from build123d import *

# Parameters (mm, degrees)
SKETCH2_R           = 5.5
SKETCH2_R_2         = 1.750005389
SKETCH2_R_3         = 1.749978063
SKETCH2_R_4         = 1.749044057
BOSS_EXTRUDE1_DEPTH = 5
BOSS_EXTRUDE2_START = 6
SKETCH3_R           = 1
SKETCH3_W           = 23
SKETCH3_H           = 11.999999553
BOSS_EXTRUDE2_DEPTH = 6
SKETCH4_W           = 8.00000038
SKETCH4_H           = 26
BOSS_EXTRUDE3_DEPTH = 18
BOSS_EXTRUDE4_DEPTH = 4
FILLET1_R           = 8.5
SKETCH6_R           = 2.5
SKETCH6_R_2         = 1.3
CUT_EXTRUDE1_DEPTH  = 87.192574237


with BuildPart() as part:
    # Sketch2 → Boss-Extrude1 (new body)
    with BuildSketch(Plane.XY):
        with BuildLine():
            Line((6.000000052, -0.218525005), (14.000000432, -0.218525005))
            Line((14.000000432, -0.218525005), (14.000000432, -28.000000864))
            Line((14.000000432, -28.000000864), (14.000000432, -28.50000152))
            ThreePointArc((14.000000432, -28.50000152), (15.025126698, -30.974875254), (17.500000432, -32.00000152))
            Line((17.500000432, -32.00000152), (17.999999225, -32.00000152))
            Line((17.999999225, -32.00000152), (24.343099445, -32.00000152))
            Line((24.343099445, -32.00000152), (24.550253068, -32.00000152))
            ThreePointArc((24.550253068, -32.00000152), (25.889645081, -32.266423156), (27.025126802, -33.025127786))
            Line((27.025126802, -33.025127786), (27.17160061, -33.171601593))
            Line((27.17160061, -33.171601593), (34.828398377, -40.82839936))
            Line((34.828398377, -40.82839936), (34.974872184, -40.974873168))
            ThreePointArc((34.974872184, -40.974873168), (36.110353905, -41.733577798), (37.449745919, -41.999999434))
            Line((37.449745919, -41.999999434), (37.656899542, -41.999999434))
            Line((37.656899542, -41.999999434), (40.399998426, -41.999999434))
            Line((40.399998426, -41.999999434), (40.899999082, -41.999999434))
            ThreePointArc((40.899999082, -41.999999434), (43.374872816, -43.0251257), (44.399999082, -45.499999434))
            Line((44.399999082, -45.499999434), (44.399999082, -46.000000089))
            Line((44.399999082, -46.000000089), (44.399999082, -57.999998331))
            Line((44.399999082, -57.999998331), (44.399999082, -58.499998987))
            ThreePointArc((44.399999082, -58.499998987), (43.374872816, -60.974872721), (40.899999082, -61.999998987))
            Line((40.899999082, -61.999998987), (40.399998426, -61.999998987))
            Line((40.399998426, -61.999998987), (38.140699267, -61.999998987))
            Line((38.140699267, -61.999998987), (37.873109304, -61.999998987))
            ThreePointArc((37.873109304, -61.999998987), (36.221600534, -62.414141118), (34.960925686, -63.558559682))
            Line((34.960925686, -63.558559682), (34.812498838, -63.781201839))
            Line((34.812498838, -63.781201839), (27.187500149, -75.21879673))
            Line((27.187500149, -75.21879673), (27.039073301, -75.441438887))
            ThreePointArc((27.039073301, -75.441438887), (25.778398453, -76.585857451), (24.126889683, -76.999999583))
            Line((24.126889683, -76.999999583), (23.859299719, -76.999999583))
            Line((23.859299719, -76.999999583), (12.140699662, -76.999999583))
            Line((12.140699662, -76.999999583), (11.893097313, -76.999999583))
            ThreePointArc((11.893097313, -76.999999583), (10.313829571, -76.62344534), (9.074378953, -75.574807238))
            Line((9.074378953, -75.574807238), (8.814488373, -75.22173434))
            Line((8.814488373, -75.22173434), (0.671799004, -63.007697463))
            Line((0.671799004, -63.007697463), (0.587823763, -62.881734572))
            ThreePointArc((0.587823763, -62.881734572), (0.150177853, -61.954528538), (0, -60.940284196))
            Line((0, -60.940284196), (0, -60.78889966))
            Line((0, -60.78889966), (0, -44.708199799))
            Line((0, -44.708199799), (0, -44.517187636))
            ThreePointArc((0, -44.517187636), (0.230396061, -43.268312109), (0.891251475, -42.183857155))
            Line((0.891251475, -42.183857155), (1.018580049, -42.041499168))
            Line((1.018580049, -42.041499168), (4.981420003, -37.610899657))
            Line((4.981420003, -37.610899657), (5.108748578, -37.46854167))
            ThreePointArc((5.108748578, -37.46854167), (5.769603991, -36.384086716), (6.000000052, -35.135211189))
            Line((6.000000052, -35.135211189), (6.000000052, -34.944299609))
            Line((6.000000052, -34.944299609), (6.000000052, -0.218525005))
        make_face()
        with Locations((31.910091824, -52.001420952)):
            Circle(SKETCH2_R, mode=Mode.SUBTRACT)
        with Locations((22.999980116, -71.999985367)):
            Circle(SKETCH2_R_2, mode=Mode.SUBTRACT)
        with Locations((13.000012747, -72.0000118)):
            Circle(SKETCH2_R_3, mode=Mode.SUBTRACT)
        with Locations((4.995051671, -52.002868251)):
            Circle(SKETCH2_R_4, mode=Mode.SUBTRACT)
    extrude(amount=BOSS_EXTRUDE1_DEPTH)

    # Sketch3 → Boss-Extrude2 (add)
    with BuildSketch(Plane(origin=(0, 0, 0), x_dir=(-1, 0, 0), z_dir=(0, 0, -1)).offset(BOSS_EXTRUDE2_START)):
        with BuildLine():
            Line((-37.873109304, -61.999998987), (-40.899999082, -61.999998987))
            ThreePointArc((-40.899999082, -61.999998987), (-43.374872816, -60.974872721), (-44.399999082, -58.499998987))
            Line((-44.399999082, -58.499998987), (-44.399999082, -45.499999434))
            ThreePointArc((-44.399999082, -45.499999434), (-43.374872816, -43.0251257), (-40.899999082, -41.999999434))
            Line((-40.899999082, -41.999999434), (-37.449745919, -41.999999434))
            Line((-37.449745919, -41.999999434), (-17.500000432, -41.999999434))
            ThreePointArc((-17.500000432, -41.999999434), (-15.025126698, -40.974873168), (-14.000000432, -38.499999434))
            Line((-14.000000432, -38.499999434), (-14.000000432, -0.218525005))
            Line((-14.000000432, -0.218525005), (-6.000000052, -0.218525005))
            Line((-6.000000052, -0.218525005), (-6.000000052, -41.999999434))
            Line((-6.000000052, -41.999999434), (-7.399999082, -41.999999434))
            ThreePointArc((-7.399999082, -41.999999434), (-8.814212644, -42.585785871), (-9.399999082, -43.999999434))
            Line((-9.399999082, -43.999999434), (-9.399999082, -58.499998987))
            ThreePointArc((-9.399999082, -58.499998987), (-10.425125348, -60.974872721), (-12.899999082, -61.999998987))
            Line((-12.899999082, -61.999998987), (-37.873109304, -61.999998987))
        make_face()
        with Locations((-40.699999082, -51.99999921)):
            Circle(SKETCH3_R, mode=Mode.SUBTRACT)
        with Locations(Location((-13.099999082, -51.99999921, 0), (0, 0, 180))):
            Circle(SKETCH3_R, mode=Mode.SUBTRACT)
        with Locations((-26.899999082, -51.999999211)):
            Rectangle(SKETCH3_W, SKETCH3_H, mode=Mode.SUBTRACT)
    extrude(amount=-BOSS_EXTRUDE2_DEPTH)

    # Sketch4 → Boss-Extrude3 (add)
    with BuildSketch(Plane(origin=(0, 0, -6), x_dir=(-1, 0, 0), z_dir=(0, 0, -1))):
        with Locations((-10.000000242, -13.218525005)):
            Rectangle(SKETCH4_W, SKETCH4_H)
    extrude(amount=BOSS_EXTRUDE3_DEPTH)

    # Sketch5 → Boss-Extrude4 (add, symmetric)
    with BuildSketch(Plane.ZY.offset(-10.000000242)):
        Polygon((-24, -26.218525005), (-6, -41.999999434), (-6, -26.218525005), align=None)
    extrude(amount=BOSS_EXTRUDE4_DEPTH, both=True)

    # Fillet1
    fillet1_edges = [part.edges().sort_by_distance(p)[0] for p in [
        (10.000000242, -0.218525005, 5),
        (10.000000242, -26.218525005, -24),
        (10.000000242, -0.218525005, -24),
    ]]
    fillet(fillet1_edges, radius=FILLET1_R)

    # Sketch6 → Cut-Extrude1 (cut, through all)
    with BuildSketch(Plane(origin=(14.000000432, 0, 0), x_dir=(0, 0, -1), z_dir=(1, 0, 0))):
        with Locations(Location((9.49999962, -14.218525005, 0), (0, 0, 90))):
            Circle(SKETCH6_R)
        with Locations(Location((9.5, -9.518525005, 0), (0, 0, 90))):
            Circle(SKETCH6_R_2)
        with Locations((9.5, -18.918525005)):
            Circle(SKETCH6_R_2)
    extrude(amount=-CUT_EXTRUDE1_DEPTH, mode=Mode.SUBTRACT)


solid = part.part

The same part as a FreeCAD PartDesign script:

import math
import FreeCAD as App
import Part
import Sketcher
from FreeCAD import Vector
Q = App.Units.Quantity


def edges_at(feature, points):
    """Names of the edges that pass closest to the given points."""
    edges = feature.Shape.Edges
    near = lambda p: min(range(len(edges)), key=lambda i: edges[i].distToShape(Part.Vertex(*p))[0])
    return sorted({f"Edge{near(p) + 1}" for p in points})


def add_polygon(sketch, points):
    """Adds a closed chain of lines whose ends are joined by coincident constraints."""
    first, n = sketch.GeometryCount, len(points)
    for a, b in zip(points, points[1:] + points[:1]):
        sketch.addGeometry(Part.LineSegment(App.Vector(*a, 0), App.Vector(*b, 0)), False)
    for i in range(n):
        sketch.addConstraint(Sketcher.Constraint("Coincident", first + i, 2, first + (i + 1) % n, 1))

doc = App.newDocument("Part")
body = doc.addObject("PartDesign::Body", "Body")

# Sketch on XY plane
sketch1 = doc.addObject("Sketcher::SketchObject", "Sketch")
body.addObject(sketch1)
sketch1.AttachmentSupport = (doc.XY_Plane, [""])
sketch1.MapMode = "FlatFace"
sketch1.addGeometry(Part.LineSegment(Vector(14, -0.22, 0), Vector(6, -0.22, 0)), False)
sketch1.addGeometry(Part.LineSegment(Vector(6, -0.22, 0), Vector(6, -35.14, 0)), False)
sketch1.addGeometry(Part.ArcOfCircle(Part.Circle(Vector(2.5, -35.14, 0), Vector(0, 0, 1), 3.5), math.radians(-42), math.radians(0)), False)
sketch1.addGeometry(Part.LineSegment(Vector(5.11, -37.47, 0), Vector(4.98, -37.61, 0)), False)
sketch1.addGeometry(Part.LineSegment(Vector(4.98, -37.61, 0), Vector(1.02, -42.04, 0)), False)
sketch1.addGeometry(Part.LineSegment(Vector(1.02, -42.04, 0), Vector(0.89, -42.18, 0)), False)
sketch1.addGeometry(Part.ArcOfCircle(Part.Circle(Vector(3.5, -44.52, 0), Vector(0, 0, 1), 3.5), math.radians(138), math.radians(180)), False)
sketch1.addGeometry(Part.LineSegment(Vector(0, -44.52, 0), Vector(0, -60.94, 0)), False)
sketch1.addGeometry(Part.ArcOfCircle(Part.Circle(Vector(3.5, -60.94, 0), Vector(0, 0, 1), 3.5), math.radians(180), math.radians(214)), False)
sketch1.addGeometry(Part.LineSegment(Vector(0.59, -62.88, 0), Vector(0.67, -63.01, 0)), False)
sketch1.addGeometry(Part.LineSegment(Vector(0.67, -63.01, 0), Vector(8.81, -75.22, 0)), False)
sketch1.addGeometry(Part.LineSegment(Vector(8.81, -75.22, 0), Vector(9.07, -75.57, 0)), False)
sketch1.addGeometry(Part.ArcOfCircle(Part.Circle(Vector(11.89, -73.5, 0), Vector(0, 0, 1), 3.5), math.radians(-144), math.radians(-90)), False)
sketch1.addGeometry(Part.LineSegment(Vector(11.89, -77, 0), Vector(24.13, -77, 0)), False)
sketch1.addGeometry(Part.ArcOfCircle(Part.Circle(Vector(24.13, -73.5, 0), Vector(0, 0, 1), 3.5), math.radians(-90), math.radians(-34)), False)
sketch1.addGeometry(Part.LineSegment(Vector(27.04, -75.44, 0), Vector(27.19, -75.22, 0)), False)
sketch1.addGeometry(Part.LineSegment(Vector(27.19, -75.22, 0), Vector(34.81, -63.78, 0)), False)
sketch1.addGeometry(Part.LineSegment(Vector(34.81, -63.78, 0), Vector(34.96, -63.56, 0)), False)
sketch1.addGeometry(Part.ArcOfCircle(Part.Circle(Vector(37.87, -65.5, 0), Vector(0, 0, 1), 3.5), math.radians(90), math.radians(146)), False)
sketch1.addGeometry(Part.LineSegment(Vector(37.87, -62, 0), Vector(40.9, -62, 0)), False)
sketch1.addGeometry(Part.ArcOfCircle(Part.Circle(Vector(40.9, -58.5, 0), Vector(0, 0, 1), 3.5), math.radians(-90), math.radians(0)), False)
sketch1.addGeometry(Part.LineSegment(Vector(44.4, -58.5, 0), Vector(44.4, -45.5, 0)), False)
sketch1.addGeometry(Part.ArcOfCircle(Part.Circle(Vector(40.9, -45.5, 0), Vector(0, 0, 1), 3.5), math.radians(0), math.radians(90)), False)
sketch1.addGeometry(Part.LineSegment(Vector(40.9, -42, 0), Vector(37.45, -42, 0)), False)
sketch1.addGeometry(Part.ArcOfCircle(Part.Circle(Vector(37.45, -38.5, 0), Vector(0, 0, 1), 3.5), math.radians(-135), math.radians(-90)), False)
sketch1.addGeometry(Part.LineSegment(Vector(34.97, -40.97, 0), Vector(34.83, -40.83, 0)), False)
sketch1.addGeometry(Part.LineSegment(Vector(34.83, -40.83, 0), Vector(27.17, -33.17, 0)), False)
sketch1.addGeometry(Part.LineSegment(Vector(27.17, -33.17, 0), Vector(27.03, -33.03, 0)), False)
sketch1.addGeometry(Part.ArcOfCircle(Part.Circle(Vector(24.55, -35.5, 0), Vector(0, 0, 1), 3.5), math.radians(45), math.radians(90)), False)
sketch1.addGeometry(Part.LineSegment(Vector(24.55, -32, 0), Vector(17.5, -32, 0)), False)
sketch1.addGeometry(Part.ArcOfCircle(Part.Circle(Vector(17.5, -28.5, 0), Vector(0, 0, 1), 3.5), math.radians(-180), math.radians(-90)), False)
sketch1.addGeometry(Part.LineSegment(Vector(14, -28.5, 0), Vector(14, -0.22, 0)), False)
sketch1.addGeometry(Part.Circle(Vector(23, -72, 0), Vector(0, 0, 1), 1.75), False)
sketch1.addGeometry(Part.Circle(Vector(13, -72, 0), Vector(0, 0, 1), 1.75), False)
sketch1.addGeometry(Part.Circle(Vector(31.91, -52, 0), Vector(0, 0, 1), 5.5), False)
sketch1.addGeometry(Part.Circle(Vector(5, -52, 0), Vector(0, 0, 1), 1.75), False)
sketch1.addConstraint(Sketcher.Constraint("Coincident", 0, 2, 1, 1))
sketch1.addConstraint(Sketcher.Constraint("Tangent", 1, 2, 2, 2))
sketch1.addConstraint(Sketcher.Constraint("Tangent", 2, 1, 3, 1))
sketch1.addConstraint(Sketcher.Constraint("Coincident", 3, 2, 4, 1))
sketch1.addConstraint(Sketcher.Constraint("Coincident", 4, 2, 5, 1))
sketch1.addConstraint(Sketcher.Constraint("Tangent", 5, 2, 6, 1))
sketch1.addConstraint(Sketcher.Constraint("Tangent", 6, 2, 7, 1))
sketch1.addConstraint(Sketcher.Constraint("Tangent", 7, 2, 8, 1))
sketch1.addConstraint(Sketcher.Constraint("Tangent", 8, 2, 9, 1))
sketch1.addConstraint(Sketcher.Constraint("Coincident", 9, 2, 10, 1))
sketch1.addConstraint(Sketcher.Constraint("Coincident", 10, 2, 11, 1))
sketch1.addConstraint(Sketcher.Constraint("Tangent", 11, 2, 12, 1))
sketch1.addConstraint(Sketcher.Constraint("Tangent", 12, 2, 13, 1))
sketch1.addConstraint(Sketcher.Constraint("Tangent", 13, 2, 14, 1))
sketch1.addConstraint(Sketcher.Constraint("Tangent", 14, 2, 15, 1))
sketch1.addConstraint(Sketcher.Constraint("Coincident", 15, 2, 16, 1))
sketch1.addConstraint(Sketcher.Constraint("Coincident", 16, 2, 17, 1))
sketch1.addConstraint(Sketcher.Constraint("Tangent", 17, 2, 18, 2))
sketch1.addConstraint(Sketcher.Constraint("Tangent", 18, 1, 19, 1))
sketch1.addConstraint(Sketcher.Constraint("Tangent", 19, 2, 20, 1))
sketch1.addConstraint(Sketcher.Constraint("Tangent", 20, 2, 21, 1))
sketch1.addConstraint(Sketcher.Constraint("Tangent", 21, 2, 22, 1))
sketch1.addConstraint(Sketcher.Constraint("Tangent", 22, 2, 23, 1))
sketch1.addConstraint(Sketcher.Constraint("Tangent", 23, 2, 24, 2))
sketch1.addConstraint(Sketcher.Constraint("Tangent", 24, 1, 25, 1))
sketch1.addConstraint(Sketcher.Constraint("Coincident", 25, 2, 26, 1))
sketch1.addConstraint(Sketcher.Constraint("Coincident", 26, 2, 27, 1))
sketch1.addConstraint(Sketcher.Constraint("Tangent", 27, 2, 28, 1))
sketch1.addConstraint(Sketcher.Constraint("Tangent", 28, 2, 29, 1))
sketch1.addConstraint(Sketcher.Constraint("Tangent", 29, 2, 30, 2))
sketch1.addConstraint(Sketcher.Constraint("Tangent", 30, 1, 31, 1))
sketch1.addConstraint(Sketcher.Constraint("Coincident", 31, 2, 0, 1))
sketch1.addConstraint(Sketcher.Constraint("Horizontal", 0))
sketch1.addConstraint(Sketcher.Constraint("Vertical", 1))
sketch1.addConstraint(Sketcher.Constraint("Vertical", 7))
sketch1.addConstraint(Sketcher.Constraint("Horizontal", 13))
sketch1.addConstraint(Sketcher.Constraint("Horizontal", 19))
sketch1.addConstraint(Sketcher.Constraint("Vertical", 21))
sketch1.addConstraint(Sketcher.Constraint("Horizontal", 23))
sketch1.addConstraint(Sketcher.Constraint("Horizontal", 29))
sketch1.addConstraint(Sketcher.Constraint("Vertical", 31))
sketch1.addConstraint(Sketcher.Constraint("Equal", 2, 6))
sketch1.addConstraint(Sketcher.Constraint("Equal", 6, 8))
sketch1.addConstraint(Sketcher.Constraint("Equal", 8, 12))
sketch1.addConstraint(Sketcher.Constraint("Equal", 12, 14))
sketch1.addConstraint(Sketcher.Constraint("Equal", 14, 18))
sketch1.addConstraint(Sketcher.Constraint("Equal", 18, 20))
sketch1.addConstraint(Sketcher.Constraint("Equal", 20, 22))
sketch1.addConstraint(Sketcher.Constraint("Equal", 22, 24))
sketch1.addConstraint(Sketcher.Constraint("Equal", 24, 28))
sketch1.addConstraint(Sketcher.Constraint("Equal", 28, 30))
sketch1.addConstraint(Sketcher.Constraint("PointOnObject", 6, 2, -2))
sketch1.addConstraint(Sketcher.Constraint("Parallel", 3, 4))
sketch1.addConstraint(Sketcher.Constraint("Parallel", 4, 5))
sketch1.addConstraint(Sketcher.Constraint("Parallel", 9, 10))
sketch1.addConstraint(Sketcher.Constraint("Parallel", 15, 16))
sketch1.addConstraint(Sketcher.Constraint("Parallel", 16, 17))
sketch1.addConstraint(Sketcher.Constraint("Parallel", 25, 26))
sketch1.addConstraint(Sketcher.Constraint("Parallel", 26, 27))
sketch1.addConstraint(Sketcher.Constraint("Equal", 3, 5))
sketch1.addConstraint(Sketcher.Constraint("Equal", 15, 17))
sketch1.addConstraint(Sketcher.Constraint("Equal", 25, 27))
sketch1.addConstraint(Sketcher.Constraint("Diameter", 34, Q("11 mm")))
sketch1.addConstraint(Sketcher.Constraint("Radius", 2, Q("3.5 mm")))
sketch1.addConstraint(Sketcher.Constraint("DistanceX", 0, 2, 0, 1, Q("8 mm")))
sketch1.addConstraint(Sketcher.Constraint("DistanceY", 21, 1, 21, 2, Q("13 mm")))
sketch1.addConstraint(Sketcher.Constraint("Angle", 25, Q("135 deg")))
sketch1.addConstraint(Sketcher.Constraint("DistanceX", -1, 1, 0, 2, Q("6 mm")))
sketch1.addConstraint(Sketcher.Constraint("DistanceY", 12, 2, -1, 1, Q("77 mm")))
sketch1.addConstraint(Sketcher.Constraint("DistanceY", 18, 1, -1, 1, Q("61.999999 mm")))
sketch1.addConstraint(Sketcher.Constraint("DistanceY", 28, 2, -1, 1, Q("32.000002 mm")))
sketch1.addConstraint(Sketcher.Constraint("DistanceX", -1, 1, 20, 3, Q("40.899999 mm")))
sketch1.addConstraint(Sketcher.Constraint("Diameter", 32, Q("3.500011 mm")))
sketch1.addConstraint(Sketcher.Constraint("Diameter", 35, Q("3.498088 mm")))
sketch1.addConstraint(Sketcher.Constraint("DistanceY", 10, 2, 8, 2, Q("12.34 mm")))
sketch1.addConstraint(Sketcher.Constraint("Diameter", 33, Q("3.499956 mm")))
sketch1.addConstraint(Sketcher.Constraint("DistanceX", 15, 2, 16, 2, Q("7.624999 mm")))
sketch1.addConstraint(Sketcher.Constraint("DistanceX", 19, 1, 19, 2, Q("3.02689 mm")))
sketch1.addConstraint(Sketcher.Constraint("DistanceY", 3, 2, -1, 1, Q("37.6109 mm")))
sketch1.addConstraint(Sketcher.Constraint("DistanceY", 4, 2, -1, 1, Q("42.041499 mm")))
sketch1.addConstraint(Sketcher.Constraint("DistanceX", -1, 1, 9, 2, Q("0.671799 mm")))
sketch1.addConstraint(Sketcher.Constraint("DistanceX", -1, 1, 15, 2, Q("27.1875 mm")))
sketch1.addConstraint(Sketcher.Constraint("DistanceX", -1, 1, 25, 2, Q("34.828398 mm")))
sketch1.addConstraint(Sketcher.Constraint("DistanceY", 25, 2, -1, 1, Q("40.828399 mm")))
sketch1.addConstraint(Sketcher.Constraint("DistanceX", 12, 3, 20, 3, Q("29.006902 mm")))
sketch1.addConstraint(Sketcher.Constraint("DistanceY", 32, 3, 8, 3, Q("11.059701 mm")))
sketch1.addConstraint(Sketcher.Constraint("DistanceX", 11, 2, 32, 3, Q("13.925601 mm")))
sketch1.addConstraint(Sketcher.Constraint("Distance", 9, Q("0.151389 mm")))
sketch1.addConstraint(Sketcher.Constraint("Distance", 11, Q("0.43841 mm")))
sketch1.addConstraint(Sketcher.Constraint("DistanceY", 1, 2, 1, 1, Q("34.916686 mm")))
sketch1.addConstraint(Sketcher.Constraint("DistanceY", 7, 2, 7, 1, Q("16.423097 mm")))
sketch1.addConstraint(Sketcher.Constraint("DistanceY", 33, 3, -1, 1, Q("72.000012 mm")))
sketch1.addConstraint(Sketcher.Constraint("DistanceX", -1, 1, 34, 3, Q("31.910092 mm")))
sketch1.addConstraint(Sketcher.Constraint("DistanceY", 34, 3, -1, 1, Q("52.001421 mm")))
sketch1.addConstraint(Sketcher.Constraint("DistanceX", -1, 1, 35, 3, Q("4.995052 mm")))
sketch1.addConstraint(Sketcher.Constraint("DistanceY", 35, 3, -1, 1, Q("52.002868 mm")))
sketch1.addConstraint(Sketcher.Constraint("DistanceX", 35, 3, 33, 3, Q("8.004961 mm")))
pad1 = doc.addObject("PartDesign::Pad", "Pad")
body.addObject(pad1)
pad1.Profile = sketch1
pad1.Length = 5

# Sketch on XY plane
sketch2 = doc.addObject("Sketcher::SketchObject", "Sketch001")
body.addObject(sketch2)
sketch2.AttachmentSupport = (doc.XY_Plane, [""])
sketch2.MapMode = "FlatFace"
sketch2.AttachmentOffset = App.Placement(Vector(0, 0, -6), App.Rotation())
sketch2.addGeometry(Part.ArcOfCircle(Part.Circle(Vector(40.9, -58.5, 0), Vector(0, 0, 1), 3.5), math.radians(-90), math.radians(0)), False)  # 0
sketch2.addGeometry(Part.LineSegment(Vector(40.9, -62, 0), Vector(12.9, -62, 0)), False)  # 1
sketch2.addGeometry(Part.ArcOfCircle(Part.Circle(Vector(12.9, -58.5, 0), Vector(0, 0, 1), 3.5), math.radians(-180), math.radians(-90)), False)  # 2
sketch2.addGeometry(Part.LineSegment(Vector(9.4, -58.5, 0), Vector(9.4, -44, 0)), False)  # 3
sketch2.addGeometry(Part.ArcOfCircle(Part.Circle(Vector(7.4, -44, 0), Vector(0, 0, 1), 2), math.radians(0), math.radians(90)), False)  # 4
sketch2.addGeometry(Part.LineSegment(Vector(7.4, -42, 0), Vector(6, -42, 0)), False)  # 5
sketch2.addGeometry(Part.LineSegment(Vector(6, -42, 0), Vector(6, -0.2, 0)), False)  # 6
sketch2.addGeometry(Part.LineSegment(Vector(6, -0.2, 0), Vector(14, -0.2, 0)), False)  # 7
sketch2.addGeometry(Part.LineSegment(Vector(14, -0.2, 0), Vector(14, -38.5, 0)), False)  # 8
sketch2.addGeometry(Part.ArcOfCircle(Part.Circle(Vector(17.5, -38.5, 0), Vector(0, 0, 1), 3.5), math.radians(-180), math.radians(-90)), False)  # 9
sketch2.addGeometry(Part.LineSegment(Vector(17.5, -42, 0), Vector(40.9, -42, 0)), False)  # 10
sketch2.addGeometry(Part.ArcOfCircle(Part.Circle(Vector(40.9, -45.5, 0), Vector(0, 0, 1), 3.5), math.radians(0), math.radians(90)), False)  # 11
sketch2.addGeometry(Part.LineSegment(Vector(44.4, -45.5, 0), Vector(44.4, -58.5, 0)), False)  # 12
sketch2.addGeometry(Part.Circle(Vector(13.1, -52, 0), Vector(0, 0, 1), 1), False)  # 13
add_polygon(sketch2, [(38.4, -58), (38.4, -46), (15.4, -46), (15.4, -58)])  # lines 14-17
sketch2.addGeometry(Part.Circle(Vector(40.7, -52, 0), Vector(0, 0, 1), 1), False)  # 18
sketch2.addConstraint(Sketcher.Constraint("Tangent", 0, 1, 1, 1))
sketch2.addConstraint(Sketcher.Constraint("Tangent", 1, 2, 2, 2))
sketch2.addConstraint(Sketcher.Constraint("Tangent", 2, 1, 3, 1))
sketch2.addConstraint(Sketcher.Constraint("Tangent", 3, 2, 4, 1))
sketch2.addConstraint(Sketcher.Constraint("Tangent", 4, 2, 5, 1))
sketch2.addConstraint(Sketcher.Constraint("Coincident", 5, 2, 6, 1))
sketch2.addConstraint(Sketcher.Constraint("Coincident", 6, 2, 7, 1))
sketch2.addConstraint(Sketcher.Constraint("Coincident", 7, 2, 8, 1))
sketch2.addConstraint(Sketcher.Constraint("Tangent", 8, 2, 9, 1))
sketch2.addConstraint(Sketcher.Constraint("Tangent", 9, 2, 10, 1))
sketch2.addConstraint(Sketcher.Constraint("Tangent", 10, 2, 11, 2))
sketch2.addConstraint(Sketcher.Constraint("Tangent", 11, 1, 12, 1))
sketch2.addConstraint(Sketcher.Constraint("Tangent", 12, 2, 0, 2))
sketch2.addConstraint(Sketcher.Constraint("Horizontal", 1))
sketch2.addConstraint(Sketcher.Constraint("Vertical", 3))
sketch2.addConstraint(Sketcher.Constraint("Horizontal", 5))
sketch2.addConstraint(Sketcher.Constraint("Vertical", 6))
sketch2.addConstraint(Sketcher.Constraint("Horizontal", 7))
sketch2.addConstraint(Sketcher.Constraint("Vertical", 8))
sketch2.addConstraint(Sketcher.Constraint("Horizontal", 10))
sketch2.addConstraint(Sketcher.Constraint("Vertical", 12))
sketch2.addConstraint(Sketcher.Constraint("Vertical", 14))
sketch2.addConstraint(Sketcher.Constraint("Horizontal", 15))
sketch2.addConstraint(Sketcher.Constraint("Vertical", 16))
sketch2.addConstraint(Sketcher.Constraint("Horizontal", 17))
sketch2.addConstraint(Sketcher.Constraint("Equal", 0, 2))
sketch2.addConstraint(Sketcher.Constraint("Equal", 2, 9))
sketch2.addConstraint(Sketcher.Constraint("Equal", 9, 11))
sketch2.addConstraint(Sketcher.Constraint("Equal", 13, 18))
sketch2.addConstraint(Sketcher.Constraint("Horizontal", 13, 3, 18, 3))
sketch2.addConstraint(Sketcher.Constraint("Horizontal", 5, 2, 9, 2))
sketch2.addConstraint(Sketcher.Constraint("Diameter", 13, Q("2 mm")))
sketch2.addConstraint(Sketcher.Constraint("Radius", 4, Q("2 mm")))
sketch2.addConstraint(Sketcher.Constraint("Radius", 0, Q("3.5 mm")))
sketch2.addConstraint(Sketcher.Constraint("DistanceX", 1, 2, 1, 1, Q("28 mm")))
sketch2.addConstraint(Sketcher.Constraint("DistanceX", 7, 1, 7, 2, Q("8 mm")))
sketch2.addConstraint(Sketcher.Constraint("DistanceX", 15, 2, 15, 1, Q("23 mm")))
sketch2.addConstraint(Sketcher.Constraint("DistanceY", 12, 2, 12, 1, Q("13 mm")))
sketch2.addConstraint(Sketcher.Constraint("DistanceY", 14, 1, 14, 2, Q("12 mm")))
sketch2.addConstraint(Sketcher.Constraint("DistanceX", 5, 2, 5, 1, Q("1.399999 mm")))
sketch2.addConstraint(Sketcher.Constraint("DistanceY", 4, 3, -1, 1, Q("43.999999 mm")))
sketch2.addConstraint(Sketcher.Constraint("DistanceY", 13, 3, -1, 1, Q("51.999999 mm")))
sketch2.addConstraint(Sketcher.Constraint("DistanceX", -1, 1, 5, 2, Q("6 mm")))
sketch2.addConstraint(Sketcher.Constraint("DistanceY", 14, 2, -1, 1, Q("45.999999 mm")))
sketch2.addConstraint(Sketcher.Constraint("DistanceX", 14, 2, 11, 1, Q("6 mm")))
sketch2.addConstraint(Sketcher.Constraint("DistanceX", -1, 1, 13, 3, Q("13.099999 mm")))
sketch2.addConstraint(Sketcher.Constraint("DistanceX", -1, 1, 18, 3, Q("40.699999 mm")))
sketch2.addConstraint(Sketcher.Constraint("DistanceY", 6, 1, 6, 2, Q("41.781474 mm")))
pad2 = doc.addObject("PartDesign::Pad", "Pad001")
body.addObject(pad2)
pad2.Profile = sketch2
pad2.Length = 6

# Sketch on XY plane
sketch3 = doc.addObject("Sketcher::SketchObject", "Sketch002")
body.addObject(sketch3)
sketch3.AttachmentSupport = (doc.XY_Plane, [""])
sketch3.MapMode = "FlatFace"
sketch3.AttachmentOffset = App.Placement(Vector(0, 0, -6), App.Rotation())
add_polygon(sketch3, [(14, 0), (14, -26), (6, -26), (6, 0)])  # lines 0-3
sketch3.addConstraint(Sketcher.Constraint("Vertical", 0))
sketch3.addConstraint(Sketcher.Constraint("Horizontal", 1))
sketch3.addConstraint(Sketcher.Constraint("Vertical", 2))
sketch3.addConstraint(Sketcher.Constraint("Horizontal", 3))
sketch3.addConstraint(Sketcher.Constraint("DistanceX", 1, 2, 1, 1, Q("8 mm")))
sketch3.addConstraint(Sketcher.Constraint("DistanceY", 0, 2, 0, 1, Q("26 mm")))
sketch3.addConstraint(Sketcher.Constraint("DistanceX", -1, 1, 0, 2, Q("14 mm")))
sketch3.addConstraint(Sketcher.Constraint("DistanceY", 0, 2, -1, 1, Q("26.218525 mm")))
pad3 = doc.addObject("PartDesign::Pad", "Pad002")
body.addObject(pad3)
pad3.Profile = sketch3
pad3.Length = 18
pad3.Reversed = True

# Sketch on YZ plane
sketch4 = doc.addObject("Sketcher::SketchObject", "Sketch003")
body.addObject(sketch4)
sketch4.AttachmentSupport = (doc.YZ_Plane, [""])
sketch4.MapMode = "FlatFace"
sketch4.AttachmentOffset = App.Placement(Vector(0, 0, 10), App.Rotation())
add_polygon(sketch4, [(-26, -24), (-42, -6), (-26, -6)])  # lines 0-2
sketch4.addConstraint(Sketcher.Constraint("Horizontal", 1))
sketch4.addConstraint(Sketcher.Constraint("Vertical", 2))
sketch4.addConstraint(Sketcher.Constraint("DistanceY", 2, 2, 2, 1, Q("18 mm")))
sketch4.addConstraint(Sketcher.Constraint("DistanceX", 0, 2, -1, 1, Q("41.999999 mm")))
sketch4.addConstraint(Sketcher.Constraint("DistanceY", 0, 2, -1, 1, Q("6 mm")))
sketch4.addConstraint(Sketcher.Constraint("DistanceX", 1, 1, 1, 2, Q("15.781474 mm")))
pad4 = doc.addObject("PartDesign::Pad", "Pad003")
body.addObject(pad4)
pad4.Profile = sketch4
pad4.Length = 8
pad4.Midplane = True
doc.recompute()

fillet = doc.addObject("PartDesign::Fillet", "Fillet")
body.addObject(fillet)
fillet.Base = (pad4, edges_at(pad4, [(10, -0.219, 5), (10, -26.219, -24), (10, -0.219, -24)]))
fillet.Radius = 8.5

# Sketch on YZ plane
sketch5 = doc.addObject("Sketcher::SketchObject", "Sketch004")
body.addObject(sketch5)
sketch5.AttachmentSupport = (doc.YZ_Plane, [""])
sketch5.MapMode = "FlatFace"
sketch5.AttachmentOffset = App.Placement(Vector(0, 0, 14), App.Rotation())
sketch5.addGeometry(Part.Circle(Vector(-14.2, -9.5, 0), Vector(0, 0, 1), 2.5), False)
sketch5.addGeometry(Part.Circle(Vector(-9.5, -9.5, 0), Vector(0, 0, 1), 1.3), False)
sketch5.addGeometry(Part.Circle(Vector(-18.9, -9.5, 0), Vector(0, 0, 1), 1.3), False)
sketch5.addConstraint(Sketcher.Constraint("Equal", 1, 2))
sketch5.addConstraint(Sketcher.Constraint("Horizontal", 0, 3, 1, 3))
sketch5.addConstraint(Sketcher.Constraint("Horizontal", 1, 3, 2, 3))
sketch5.addConstraint(Sketcher.Constraint("Diameter", 0, Q("5 mm")))
sketch5.addConstraint(Sketcher.Constraint("Diameter", 1, Q("2.6 mm")))
sketch5.addConstraint(Sketcher.Constraint("DistanceY", 0, 3, -1, 1, Q("9.5 mm")))
sketch5.addConstraint(Sketcher.Constraint("DistanceX", 0, 3, 1, 3, Q("4.7 mm")))
sketch5.addConstraint(Sketcher.Constraint("DistanceX", 2, 3, 0, 3, Q("4.7 mm")))
sketch5.addConstraint(Sketcher.Constraint("DistanceX", 0, 3, -1, 1, Q("14.218525 mm")))
pocket1 = doc.addObject("PartDesign::Pocket", "Pocket")
body.addObject(pocket1)
pocket1.Profile = sketch5
pocket1.Type = "ThroughAll"

doc.recompute()
